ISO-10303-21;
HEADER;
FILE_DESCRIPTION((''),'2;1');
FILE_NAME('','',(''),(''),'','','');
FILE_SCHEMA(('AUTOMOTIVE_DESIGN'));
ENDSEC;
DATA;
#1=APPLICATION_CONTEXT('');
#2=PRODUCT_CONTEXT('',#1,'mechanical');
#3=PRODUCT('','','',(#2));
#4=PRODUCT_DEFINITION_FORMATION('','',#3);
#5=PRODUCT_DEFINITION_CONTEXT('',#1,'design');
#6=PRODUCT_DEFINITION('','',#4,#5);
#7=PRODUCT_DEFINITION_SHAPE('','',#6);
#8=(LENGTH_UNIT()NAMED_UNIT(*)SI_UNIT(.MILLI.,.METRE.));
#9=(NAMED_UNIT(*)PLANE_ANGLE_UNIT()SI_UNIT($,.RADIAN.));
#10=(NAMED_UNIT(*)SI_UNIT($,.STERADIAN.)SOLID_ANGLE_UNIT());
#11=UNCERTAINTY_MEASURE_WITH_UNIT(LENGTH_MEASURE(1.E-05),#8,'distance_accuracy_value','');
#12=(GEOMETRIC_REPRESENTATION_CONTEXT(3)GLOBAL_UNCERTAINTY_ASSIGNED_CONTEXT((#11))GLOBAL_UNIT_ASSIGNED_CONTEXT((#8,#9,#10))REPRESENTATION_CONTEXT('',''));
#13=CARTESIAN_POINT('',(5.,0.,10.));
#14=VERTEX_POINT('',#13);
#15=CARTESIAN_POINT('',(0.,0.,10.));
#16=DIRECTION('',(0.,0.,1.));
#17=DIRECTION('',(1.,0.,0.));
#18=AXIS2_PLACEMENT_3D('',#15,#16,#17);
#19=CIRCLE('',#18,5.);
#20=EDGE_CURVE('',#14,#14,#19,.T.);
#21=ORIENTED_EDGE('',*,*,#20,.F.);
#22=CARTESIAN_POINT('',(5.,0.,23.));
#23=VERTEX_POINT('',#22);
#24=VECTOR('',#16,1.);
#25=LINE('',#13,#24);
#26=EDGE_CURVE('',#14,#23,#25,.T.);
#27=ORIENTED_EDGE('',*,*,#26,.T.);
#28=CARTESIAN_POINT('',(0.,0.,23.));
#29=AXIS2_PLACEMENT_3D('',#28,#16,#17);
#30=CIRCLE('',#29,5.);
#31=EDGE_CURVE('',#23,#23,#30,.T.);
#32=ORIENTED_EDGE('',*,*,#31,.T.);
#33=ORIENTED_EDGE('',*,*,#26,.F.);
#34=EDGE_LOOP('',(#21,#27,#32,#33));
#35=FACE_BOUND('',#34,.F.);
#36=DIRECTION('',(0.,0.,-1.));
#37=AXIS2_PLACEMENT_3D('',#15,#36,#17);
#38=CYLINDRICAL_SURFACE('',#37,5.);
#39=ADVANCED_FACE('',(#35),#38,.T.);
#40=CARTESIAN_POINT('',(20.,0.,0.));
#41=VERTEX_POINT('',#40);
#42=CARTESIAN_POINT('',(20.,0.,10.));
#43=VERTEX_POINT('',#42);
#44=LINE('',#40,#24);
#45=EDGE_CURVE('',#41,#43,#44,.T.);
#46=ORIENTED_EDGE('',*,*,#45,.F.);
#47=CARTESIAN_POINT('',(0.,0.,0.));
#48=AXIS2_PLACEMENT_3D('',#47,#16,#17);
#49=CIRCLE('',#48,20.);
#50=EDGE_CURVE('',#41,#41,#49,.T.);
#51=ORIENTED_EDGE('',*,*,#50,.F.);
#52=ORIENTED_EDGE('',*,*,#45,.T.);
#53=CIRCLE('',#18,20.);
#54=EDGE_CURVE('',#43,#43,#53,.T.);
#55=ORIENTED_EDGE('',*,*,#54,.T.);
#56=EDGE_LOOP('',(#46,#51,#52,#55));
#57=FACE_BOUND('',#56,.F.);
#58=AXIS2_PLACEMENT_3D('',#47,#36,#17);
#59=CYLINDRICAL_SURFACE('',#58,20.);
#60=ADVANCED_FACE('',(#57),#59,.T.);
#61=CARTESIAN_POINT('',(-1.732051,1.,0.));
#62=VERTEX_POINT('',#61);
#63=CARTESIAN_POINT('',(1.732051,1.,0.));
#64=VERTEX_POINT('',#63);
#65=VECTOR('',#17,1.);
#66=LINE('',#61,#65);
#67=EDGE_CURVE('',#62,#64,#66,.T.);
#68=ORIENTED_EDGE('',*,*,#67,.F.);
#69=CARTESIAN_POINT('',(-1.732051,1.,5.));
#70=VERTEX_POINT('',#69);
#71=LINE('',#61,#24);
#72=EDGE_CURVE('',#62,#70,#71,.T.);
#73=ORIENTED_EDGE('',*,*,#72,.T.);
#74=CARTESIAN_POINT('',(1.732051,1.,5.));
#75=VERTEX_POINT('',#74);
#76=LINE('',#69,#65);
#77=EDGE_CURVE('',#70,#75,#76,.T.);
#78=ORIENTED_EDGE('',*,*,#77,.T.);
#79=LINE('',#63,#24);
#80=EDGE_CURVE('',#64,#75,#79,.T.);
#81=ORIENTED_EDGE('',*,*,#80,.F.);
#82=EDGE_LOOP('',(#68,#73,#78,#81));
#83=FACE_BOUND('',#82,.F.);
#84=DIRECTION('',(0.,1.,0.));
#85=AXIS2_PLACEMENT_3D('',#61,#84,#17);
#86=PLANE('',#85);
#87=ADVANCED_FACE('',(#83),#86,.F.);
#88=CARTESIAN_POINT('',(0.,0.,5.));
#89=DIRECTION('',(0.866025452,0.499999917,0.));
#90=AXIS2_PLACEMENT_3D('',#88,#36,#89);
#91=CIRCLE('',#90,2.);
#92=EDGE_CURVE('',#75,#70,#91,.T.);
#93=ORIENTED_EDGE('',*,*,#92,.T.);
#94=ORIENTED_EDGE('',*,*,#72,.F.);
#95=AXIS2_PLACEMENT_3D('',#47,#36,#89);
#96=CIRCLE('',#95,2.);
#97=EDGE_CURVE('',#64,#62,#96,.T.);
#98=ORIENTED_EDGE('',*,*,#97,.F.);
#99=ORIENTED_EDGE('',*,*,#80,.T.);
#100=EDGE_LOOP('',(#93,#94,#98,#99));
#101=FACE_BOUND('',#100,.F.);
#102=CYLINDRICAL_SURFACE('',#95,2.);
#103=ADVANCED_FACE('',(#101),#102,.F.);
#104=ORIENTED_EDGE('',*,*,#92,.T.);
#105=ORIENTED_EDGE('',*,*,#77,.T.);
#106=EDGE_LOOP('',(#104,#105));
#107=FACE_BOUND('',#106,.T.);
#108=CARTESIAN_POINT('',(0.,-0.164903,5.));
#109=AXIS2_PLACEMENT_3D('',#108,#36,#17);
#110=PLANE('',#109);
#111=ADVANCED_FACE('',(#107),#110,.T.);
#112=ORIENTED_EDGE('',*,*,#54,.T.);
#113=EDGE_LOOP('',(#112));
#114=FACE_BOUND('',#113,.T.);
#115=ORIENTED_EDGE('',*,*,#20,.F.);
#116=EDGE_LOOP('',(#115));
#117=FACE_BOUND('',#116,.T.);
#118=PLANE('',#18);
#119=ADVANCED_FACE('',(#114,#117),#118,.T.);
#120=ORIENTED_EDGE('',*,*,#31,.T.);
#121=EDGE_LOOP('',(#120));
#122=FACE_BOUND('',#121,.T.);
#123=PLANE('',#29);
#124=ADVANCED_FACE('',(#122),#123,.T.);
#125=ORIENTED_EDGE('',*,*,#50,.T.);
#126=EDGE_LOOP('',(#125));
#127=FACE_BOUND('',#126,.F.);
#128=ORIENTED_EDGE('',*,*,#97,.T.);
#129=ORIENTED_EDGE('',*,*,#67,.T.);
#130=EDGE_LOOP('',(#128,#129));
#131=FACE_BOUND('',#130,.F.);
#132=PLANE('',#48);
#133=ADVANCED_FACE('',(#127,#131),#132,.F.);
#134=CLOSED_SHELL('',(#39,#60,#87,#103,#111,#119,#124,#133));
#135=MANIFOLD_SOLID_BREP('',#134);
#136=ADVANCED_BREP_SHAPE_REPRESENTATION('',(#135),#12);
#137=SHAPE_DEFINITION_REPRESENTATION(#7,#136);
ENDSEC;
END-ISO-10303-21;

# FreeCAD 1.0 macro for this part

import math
import FreeCAD as App
import Part
import Sketcher
from FreeCAD import Vector

doc = App.newDocument("Part")
params = doc.addObject("Spreadsheet::Sheet", "Params")
for row, (alias, value) in enumerate([
    ("sketch1_diameter", "40 mm"),
    ("pad1_length", "10 mm"),
    ("sketch2_diameter", "10 mm"),
    ("pad2_length", "13 mm"),
    ("sketch3_radius", "2 mm"),
    ("pocket1_length", "5 mm"),
], start=1):
    params.set(f"A{row}", alias)
    params.set(f"B{row}", "=" + value)
    params.setAlias(f"B{row}", alias)

body = doc.addObject("PartDesign::Body", "Body")

sketch1 = doc.addObject("Sketcher::SketchObject", "Sketch")
body.addObject(sketch1)
sketch1.AttachmentSupport = (doc.XY_Plane, [""])
sketch1.MapMode = "FlatFace"
sketch1.addGeometry(Part.Circle(Vector(0, 0, 0), Vector(0, 0, 1), 20), False)
sketch1.addConstraint([
    Sketcher.Constraint("Coincident", 0, 3, -1, 1),
    Sketcher.Constraint("Diameter", 0, 40.0),
])
sketch1.setExpression("Constraints[1]", "Params.sketch1_diameter")
pad1 = doc.addObject("PartDesign::Pad", "Pad")
body.addObject(pad1)
pad1.Profile = sketch1
pad1.setExpression("Length", "Params.pad1_length")

sketch2 = doc.addObject("Sketcher::SketchObject", "Sketch001")
body.addObject(sketch2)
sketch2.AttachmentSupport = (doc.XY_Plane, [""])
sketch2.MapMode = "FlatFace"
sketch2.AttachmentOffset = App.Placement(Vector(0, 0, 10), App.Rotation())
sketch2.addGeometry(Part.Circle(Vector(0, 0, 0), Vector(0, 0, 1), 5), False)
sketch2.addConstraint([
    Sketcher.Constraint("Coincident", 0, 3, -1, 1),
    Sketcher.Constraint("Diameter", 0, 10.0),
])
sketch2.setExpression("Constraints[1]", "Params.sketch2_diameter")
pad2 = doc.addObject("PartDesign::Pad", "Pad001")
body.addObject(pad2)
pad2.Profile = sketch2
pad2.setExpression("Length", "Params.pad2_length")

sketch3 = doc.addObject("Sketcher::SketchObject", "Sketch002")
body.addObject(sketch3)
sketch3.AttachmentSupport = (doc.XY_Plane, [""])
sketch3.MapMode = "FlatFace"
sketch3.addGeometry([
    Part.ArcOfCircle(Part.Circle(Vector(0, 0, 0), Vector(0, 0, 1), 2), math.radians(150.000006), math.radians(389.999994)),
    Part.LineSegment(Vector(-1.732051, 1, 0), Vector(1.732051, 1, 0)),
], False)
sketch3.addConstraint([
    Sketcher.Constraint("Coincident", 0, 1, 1, 1),
    Sketcher.Constraint("Coincident", 1, 2, 0, 2),
    Sketcher.Constraint("Horizontal", 1),
    Sketcher.Constraint("Coincident", 0, 3, -1, 1),
    Sketcher.Constraint("Radius", 0, 2.0),
    Sketcher.Constraint("DistanceY", -1, 1, 0, 1, 1.0),
])
sketch3.setExpression("Constraints[4]", "Params.sketch3_radius")
pocket1 = doc.addObject("PartDesign::Pocket", "Pocket")
body.addObject(pocket1)
pocket1.Profile = sketch3
pocket1.setExpression("Length", "Params.pocket1_length")
pocket1.Reversed = True

doc.recompute()
